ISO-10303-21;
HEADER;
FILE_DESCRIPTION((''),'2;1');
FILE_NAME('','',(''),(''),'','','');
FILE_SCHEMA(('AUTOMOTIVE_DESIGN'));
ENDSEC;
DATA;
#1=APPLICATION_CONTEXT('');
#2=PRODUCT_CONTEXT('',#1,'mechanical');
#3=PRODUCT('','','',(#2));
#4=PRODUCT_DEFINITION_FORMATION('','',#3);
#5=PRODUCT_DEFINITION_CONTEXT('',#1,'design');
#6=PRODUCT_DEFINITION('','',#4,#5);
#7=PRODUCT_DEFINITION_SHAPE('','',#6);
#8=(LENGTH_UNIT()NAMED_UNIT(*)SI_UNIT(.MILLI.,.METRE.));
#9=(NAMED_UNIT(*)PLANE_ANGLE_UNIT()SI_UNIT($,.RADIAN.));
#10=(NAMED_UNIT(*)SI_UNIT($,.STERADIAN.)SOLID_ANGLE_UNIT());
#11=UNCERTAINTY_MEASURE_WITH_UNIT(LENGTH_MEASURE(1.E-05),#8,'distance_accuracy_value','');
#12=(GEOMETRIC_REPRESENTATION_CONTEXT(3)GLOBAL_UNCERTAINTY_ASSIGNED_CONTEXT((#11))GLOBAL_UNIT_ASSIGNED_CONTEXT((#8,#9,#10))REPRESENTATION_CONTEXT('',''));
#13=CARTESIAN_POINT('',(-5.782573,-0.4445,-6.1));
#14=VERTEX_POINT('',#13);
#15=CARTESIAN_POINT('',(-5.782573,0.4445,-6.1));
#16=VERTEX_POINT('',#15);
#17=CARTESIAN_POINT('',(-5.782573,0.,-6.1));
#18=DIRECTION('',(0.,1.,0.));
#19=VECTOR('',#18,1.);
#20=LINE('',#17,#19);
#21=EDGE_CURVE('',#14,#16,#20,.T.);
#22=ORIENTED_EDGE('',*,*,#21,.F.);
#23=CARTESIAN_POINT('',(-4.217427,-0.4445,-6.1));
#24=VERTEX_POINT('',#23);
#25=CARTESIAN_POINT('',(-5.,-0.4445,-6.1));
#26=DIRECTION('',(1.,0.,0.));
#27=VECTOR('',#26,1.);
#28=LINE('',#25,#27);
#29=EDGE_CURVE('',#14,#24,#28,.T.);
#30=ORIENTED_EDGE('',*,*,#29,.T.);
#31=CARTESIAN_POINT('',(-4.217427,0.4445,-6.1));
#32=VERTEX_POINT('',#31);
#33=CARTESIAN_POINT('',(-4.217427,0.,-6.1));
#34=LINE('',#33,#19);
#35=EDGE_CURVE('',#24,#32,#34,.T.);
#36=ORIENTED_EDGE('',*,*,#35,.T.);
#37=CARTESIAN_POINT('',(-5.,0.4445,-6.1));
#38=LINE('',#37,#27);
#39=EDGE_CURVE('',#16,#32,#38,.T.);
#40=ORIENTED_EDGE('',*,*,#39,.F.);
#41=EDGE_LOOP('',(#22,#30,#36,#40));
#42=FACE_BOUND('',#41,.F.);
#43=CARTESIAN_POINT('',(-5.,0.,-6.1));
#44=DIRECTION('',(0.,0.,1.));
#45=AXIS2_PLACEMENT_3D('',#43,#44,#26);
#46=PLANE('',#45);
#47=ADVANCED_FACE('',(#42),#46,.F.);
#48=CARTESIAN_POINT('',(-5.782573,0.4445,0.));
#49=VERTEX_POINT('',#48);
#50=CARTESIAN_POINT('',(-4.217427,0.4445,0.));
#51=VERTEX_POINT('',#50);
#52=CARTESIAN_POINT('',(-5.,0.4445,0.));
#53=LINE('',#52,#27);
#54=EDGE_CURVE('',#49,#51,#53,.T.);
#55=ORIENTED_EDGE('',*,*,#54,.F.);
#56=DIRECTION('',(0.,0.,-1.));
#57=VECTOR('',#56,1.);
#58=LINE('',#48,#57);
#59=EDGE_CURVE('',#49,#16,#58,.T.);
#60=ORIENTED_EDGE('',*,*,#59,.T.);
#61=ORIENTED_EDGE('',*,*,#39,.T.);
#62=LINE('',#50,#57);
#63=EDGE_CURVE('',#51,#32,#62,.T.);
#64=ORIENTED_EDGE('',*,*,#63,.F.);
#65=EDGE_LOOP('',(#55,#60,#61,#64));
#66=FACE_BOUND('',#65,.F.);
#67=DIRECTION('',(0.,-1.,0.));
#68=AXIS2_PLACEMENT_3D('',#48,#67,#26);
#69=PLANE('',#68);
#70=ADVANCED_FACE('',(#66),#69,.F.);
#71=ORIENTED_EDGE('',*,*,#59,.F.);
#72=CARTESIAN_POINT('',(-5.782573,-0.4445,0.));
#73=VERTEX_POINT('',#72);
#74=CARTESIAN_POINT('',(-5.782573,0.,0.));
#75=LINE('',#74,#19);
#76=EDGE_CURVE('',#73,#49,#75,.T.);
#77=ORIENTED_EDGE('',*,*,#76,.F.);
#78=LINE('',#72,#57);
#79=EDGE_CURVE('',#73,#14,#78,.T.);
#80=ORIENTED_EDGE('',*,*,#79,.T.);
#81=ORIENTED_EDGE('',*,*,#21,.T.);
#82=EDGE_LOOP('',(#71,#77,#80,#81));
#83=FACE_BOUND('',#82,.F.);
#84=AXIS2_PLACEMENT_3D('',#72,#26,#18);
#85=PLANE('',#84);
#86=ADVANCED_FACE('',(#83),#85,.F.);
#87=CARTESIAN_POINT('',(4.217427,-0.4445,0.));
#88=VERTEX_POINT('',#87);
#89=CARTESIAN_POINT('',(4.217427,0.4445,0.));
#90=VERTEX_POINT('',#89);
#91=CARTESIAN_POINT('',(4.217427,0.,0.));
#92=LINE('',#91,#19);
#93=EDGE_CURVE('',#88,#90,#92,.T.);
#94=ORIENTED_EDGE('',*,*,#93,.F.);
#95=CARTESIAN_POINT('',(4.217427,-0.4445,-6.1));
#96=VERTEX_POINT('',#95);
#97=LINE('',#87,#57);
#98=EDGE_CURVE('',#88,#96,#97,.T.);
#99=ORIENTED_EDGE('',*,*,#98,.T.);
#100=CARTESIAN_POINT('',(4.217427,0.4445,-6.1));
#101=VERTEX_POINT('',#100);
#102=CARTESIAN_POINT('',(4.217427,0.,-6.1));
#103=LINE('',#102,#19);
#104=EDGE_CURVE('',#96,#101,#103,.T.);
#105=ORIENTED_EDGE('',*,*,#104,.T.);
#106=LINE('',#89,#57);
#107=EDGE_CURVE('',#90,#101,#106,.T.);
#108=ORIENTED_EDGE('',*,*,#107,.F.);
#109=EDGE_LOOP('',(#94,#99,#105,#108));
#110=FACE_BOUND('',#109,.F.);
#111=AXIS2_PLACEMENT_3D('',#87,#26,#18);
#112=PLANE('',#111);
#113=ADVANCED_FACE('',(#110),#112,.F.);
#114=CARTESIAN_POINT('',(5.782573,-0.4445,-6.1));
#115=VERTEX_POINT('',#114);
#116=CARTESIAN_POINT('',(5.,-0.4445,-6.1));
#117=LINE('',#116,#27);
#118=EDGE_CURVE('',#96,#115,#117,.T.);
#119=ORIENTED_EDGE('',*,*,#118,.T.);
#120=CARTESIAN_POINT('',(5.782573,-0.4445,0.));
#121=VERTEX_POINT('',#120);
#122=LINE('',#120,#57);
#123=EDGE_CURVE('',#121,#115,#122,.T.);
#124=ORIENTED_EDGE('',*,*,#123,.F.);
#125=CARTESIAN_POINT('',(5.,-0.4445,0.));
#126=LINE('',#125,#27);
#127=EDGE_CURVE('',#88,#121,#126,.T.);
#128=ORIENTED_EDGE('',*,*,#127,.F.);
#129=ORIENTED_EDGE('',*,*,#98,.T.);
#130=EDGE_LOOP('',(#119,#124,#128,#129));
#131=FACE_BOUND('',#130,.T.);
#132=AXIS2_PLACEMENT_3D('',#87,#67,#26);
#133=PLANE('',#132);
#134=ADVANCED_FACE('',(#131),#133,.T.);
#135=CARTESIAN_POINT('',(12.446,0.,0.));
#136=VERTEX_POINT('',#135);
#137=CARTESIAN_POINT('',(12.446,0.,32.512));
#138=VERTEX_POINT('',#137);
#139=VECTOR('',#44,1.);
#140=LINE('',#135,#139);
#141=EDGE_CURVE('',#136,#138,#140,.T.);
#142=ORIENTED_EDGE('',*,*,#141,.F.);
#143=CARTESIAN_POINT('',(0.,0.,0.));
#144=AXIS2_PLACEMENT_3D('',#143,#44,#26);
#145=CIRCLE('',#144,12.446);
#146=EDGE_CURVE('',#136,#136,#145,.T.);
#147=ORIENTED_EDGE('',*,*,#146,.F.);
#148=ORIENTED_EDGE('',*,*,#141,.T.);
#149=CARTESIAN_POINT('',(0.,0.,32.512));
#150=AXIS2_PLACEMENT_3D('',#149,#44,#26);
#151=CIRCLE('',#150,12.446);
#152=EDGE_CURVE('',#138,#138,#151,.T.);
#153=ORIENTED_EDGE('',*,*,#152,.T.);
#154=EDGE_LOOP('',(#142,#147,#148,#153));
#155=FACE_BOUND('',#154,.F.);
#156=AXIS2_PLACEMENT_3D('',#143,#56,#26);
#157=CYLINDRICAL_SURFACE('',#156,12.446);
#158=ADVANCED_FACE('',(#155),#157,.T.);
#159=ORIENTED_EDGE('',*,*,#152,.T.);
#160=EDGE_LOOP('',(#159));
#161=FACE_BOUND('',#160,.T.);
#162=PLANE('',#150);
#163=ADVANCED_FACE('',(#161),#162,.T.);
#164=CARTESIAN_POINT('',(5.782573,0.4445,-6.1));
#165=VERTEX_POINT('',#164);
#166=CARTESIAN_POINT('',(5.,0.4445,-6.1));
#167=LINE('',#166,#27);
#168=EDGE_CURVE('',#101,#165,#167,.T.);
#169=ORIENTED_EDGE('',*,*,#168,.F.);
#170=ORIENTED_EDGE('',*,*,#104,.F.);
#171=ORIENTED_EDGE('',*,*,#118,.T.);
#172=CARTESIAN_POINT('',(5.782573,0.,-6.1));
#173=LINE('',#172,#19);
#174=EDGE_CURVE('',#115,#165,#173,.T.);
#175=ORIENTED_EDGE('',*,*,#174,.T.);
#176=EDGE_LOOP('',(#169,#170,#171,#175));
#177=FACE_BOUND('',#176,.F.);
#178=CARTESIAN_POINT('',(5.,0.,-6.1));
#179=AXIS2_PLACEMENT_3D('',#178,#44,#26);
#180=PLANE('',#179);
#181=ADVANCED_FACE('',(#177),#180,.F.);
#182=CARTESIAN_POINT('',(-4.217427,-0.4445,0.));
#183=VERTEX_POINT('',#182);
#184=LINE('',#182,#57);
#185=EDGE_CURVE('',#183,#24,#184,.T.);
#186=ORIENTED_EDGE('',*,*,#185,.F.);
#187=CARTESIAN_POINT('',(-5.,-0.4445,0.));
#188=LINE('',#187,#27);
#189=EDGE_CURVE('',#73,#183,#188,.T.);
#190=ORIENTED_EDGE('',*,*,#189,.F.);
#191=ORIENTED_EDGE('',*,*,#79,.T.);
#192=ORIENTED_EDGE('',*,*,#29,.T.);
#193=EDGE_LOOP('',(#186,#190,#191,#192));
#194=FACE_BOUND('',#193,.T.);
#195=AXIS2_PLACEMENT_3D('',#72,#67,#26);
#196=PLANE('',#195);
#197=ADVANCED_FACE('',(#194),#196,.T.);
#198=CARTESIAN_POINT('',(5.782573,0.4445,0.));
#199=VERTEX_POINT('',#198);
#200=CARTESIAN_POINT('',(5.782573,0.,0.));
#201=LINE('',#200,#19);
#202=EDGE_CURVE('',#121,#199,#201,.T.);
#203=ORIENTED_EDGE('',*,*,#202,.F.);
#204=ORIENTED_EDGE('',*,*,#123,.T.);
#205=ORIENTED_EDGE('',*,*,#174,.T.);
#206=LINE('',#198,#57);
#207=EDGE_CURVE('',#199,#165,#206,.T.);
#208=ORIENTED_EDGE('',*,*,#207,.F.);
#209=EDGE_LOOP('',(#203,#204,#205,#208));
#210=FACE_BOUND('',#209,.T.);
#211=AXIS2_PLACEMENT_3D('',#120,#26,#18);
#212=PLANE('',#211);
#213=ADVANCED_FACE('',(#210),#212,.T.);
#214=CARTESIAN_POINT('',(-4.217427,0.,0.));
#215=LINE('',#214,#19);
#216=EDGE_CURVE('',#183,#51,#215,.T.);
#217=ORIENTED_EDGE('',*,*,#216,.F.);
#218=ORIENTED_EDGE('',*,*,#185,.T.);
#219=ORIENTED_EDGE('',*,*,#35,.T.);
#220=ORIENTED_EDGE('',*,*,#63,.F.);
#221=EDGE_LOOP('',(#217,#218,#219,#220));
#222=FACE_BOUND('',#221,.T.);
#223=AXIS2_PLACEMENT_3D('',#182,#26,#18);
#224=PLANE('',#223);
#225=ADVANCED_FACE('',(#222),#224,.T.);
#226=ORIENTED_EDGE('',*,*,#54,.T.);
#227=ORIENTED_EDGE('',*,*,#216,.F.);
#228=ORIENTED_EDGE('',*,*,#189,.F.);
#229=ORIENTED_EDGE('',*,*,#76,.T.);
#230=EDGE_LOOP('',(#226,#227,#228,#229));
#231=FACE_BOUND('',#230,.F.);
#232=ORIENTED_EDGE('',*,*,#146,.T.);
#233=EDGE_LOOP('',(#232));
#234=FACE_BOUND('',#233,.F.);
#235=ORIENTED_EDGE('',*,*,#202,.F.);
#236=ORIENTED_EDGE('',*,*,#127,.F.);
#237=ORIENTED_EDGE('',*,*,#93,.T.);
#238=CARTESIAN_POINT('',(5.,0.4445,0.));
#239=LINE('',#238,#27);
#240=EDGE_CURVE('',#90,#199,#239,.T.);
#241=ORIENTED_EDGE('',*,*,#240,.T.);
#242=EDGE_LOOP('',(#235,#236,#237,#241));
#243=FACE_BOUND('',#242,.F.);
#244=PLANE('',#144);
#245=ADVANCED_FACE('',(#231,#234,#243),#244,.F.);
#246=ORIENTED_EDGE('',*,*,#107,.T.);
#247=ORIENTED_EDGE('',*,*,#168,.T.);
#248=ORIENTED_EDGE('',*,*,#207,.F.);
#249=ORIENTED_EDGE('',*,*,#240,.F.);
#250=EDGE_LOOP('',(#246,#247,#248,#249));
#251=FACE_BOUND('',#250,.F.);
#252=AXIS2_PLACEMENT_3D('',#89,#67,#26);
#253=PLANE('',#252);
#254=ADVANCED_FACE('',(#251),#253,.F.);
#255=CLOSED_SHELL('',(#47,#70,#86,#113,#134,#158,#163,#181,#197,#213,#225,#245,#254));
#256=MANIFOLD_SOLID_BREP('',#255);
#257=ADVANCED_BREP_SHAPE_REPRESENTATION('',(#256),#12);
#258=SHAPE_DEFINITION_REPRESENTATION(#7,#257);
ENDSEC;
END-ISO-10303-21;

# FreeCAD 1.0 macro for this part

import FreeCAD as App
import Part
import Sketcher
from FreeCAD import Vector
Q = App.Units.Quantity


def add_polygon(sketch, points):
    """Adds a closed chain of lines whose ends are joined by coincident constraints."""
    first, n = sketch.GeometryCount, len(points)
    for a, b in zip(points, points[1:] + points[:1]):
        sketch.addGeometry(Part.LineSegment(App.Vector(*a, 0), App.Vector(*b, 0)), False)
    for i in range(n):
        sketch.addConstraint(Sketcher.Constraint("Coincident", first + i, 2, first + (i + 1) % n, 1))

doc = App.newDocument("Part")
body = doc.addObject("PartDesign::Body", "Body")

# Sketch on XY plane
sketch1 = doc.addObject("Sketcher::SketchObject", "Sketch")
body.addObject(sketch1)
sketch1.AttachmentSupport = (doc.XY_Plane, [""])
sketch1.MapMode = "FlatFace"
sketch1.addGeometry(Part.Circle(Vector(0, 0, 0), Vector(0, 0, 1), 12.446), False)
sketch1.addConstraint(Sketcher.Constraint("Coincident", 0, 3, -1, 1))
sketch1.addConstraint(Sketcher.Constraint("Diameter", 0, Q("0.98 in")))
pad1 = doc.addObject("PartDesign::Pad", "Pad")
body.addObject(pad1)
pad1.Profile = sketch1
pad1.Length = Q("1.28 in")

# Sketch on XY plane
sketch2 = doc.addObject("Sketcher::SketchObject", "Sketch001")
body.addObject(sketch2)
sketch2.AttachmentSupport = (doc.XY_Plane, [""])
sketch2.MapMode = "FlatFace"
add_polygon(sketch2, [(-5.782573, 0.4445), (-5.782573, -0.4445), (-4.217427, -0.4445), (-4.217427, 0.4445)])  # lines 0-3
add_polygon(sketch2, [(4.217427, 0.4445), (4.217427, -0.4445), (5.782573, -0.4445), (5.782573, 0.4445)])  # lines 4-7
sketch2.addConstraint(Sketcher.Constraint("Vertical", 0))
sketch2.addConstraint(Sketcher.Constraint("Horizontal", 1))
sketch2.addConstraint(Sketcher.Constraint("Vertical", 2))
sketch2.addConstraint(Sketcher.Constraint("Horizontal", 3))
sketch2.addConstraint(Sketcher.Constraint("Vertical", 4))
sketch2.addConstraint(Sketcher.Constraint("Horizontal", 5))
sketch2.addConstraint(Sketcher.Constraint("Vertical", 6))
sketch2.addConstraint(Sketcher.Constraint("Horizontal", 7))
sketch2.addConstraint(Sketcher.Constraint("Symmetric", 2, 2, 4, 2, -1, 1))
sketch2.addConstraint(Sketcher.Constraint("Symmetric", 0, 2, 6, 2, -1, 1))
sketch2.addConstraint(Sketcher.Constraint("Horizontal", 1, 2, 4, 2))
sketch2.addConstraint(Sketcher.Constraint("DistanceY", 0, 2, 0, 1, Q("0.035 in")))
sketch2.addConstraint(Sketcher.Constraint("DistanceX", 0, 2, 4, 2, Q("10 mm")))
sketch2.addConstraint(Sketcher.Constraint("DistanceX", 1, 1, 1, 2, Q("1.565145 mm")))
pad2 = doc.addObject("PartDesign::Pad", "Pad001")
body.addObject(pad2)
pad2.Profile = sketch2
pad2.Length = 6.1
pad2.Reversed = True

doc.recompute()
